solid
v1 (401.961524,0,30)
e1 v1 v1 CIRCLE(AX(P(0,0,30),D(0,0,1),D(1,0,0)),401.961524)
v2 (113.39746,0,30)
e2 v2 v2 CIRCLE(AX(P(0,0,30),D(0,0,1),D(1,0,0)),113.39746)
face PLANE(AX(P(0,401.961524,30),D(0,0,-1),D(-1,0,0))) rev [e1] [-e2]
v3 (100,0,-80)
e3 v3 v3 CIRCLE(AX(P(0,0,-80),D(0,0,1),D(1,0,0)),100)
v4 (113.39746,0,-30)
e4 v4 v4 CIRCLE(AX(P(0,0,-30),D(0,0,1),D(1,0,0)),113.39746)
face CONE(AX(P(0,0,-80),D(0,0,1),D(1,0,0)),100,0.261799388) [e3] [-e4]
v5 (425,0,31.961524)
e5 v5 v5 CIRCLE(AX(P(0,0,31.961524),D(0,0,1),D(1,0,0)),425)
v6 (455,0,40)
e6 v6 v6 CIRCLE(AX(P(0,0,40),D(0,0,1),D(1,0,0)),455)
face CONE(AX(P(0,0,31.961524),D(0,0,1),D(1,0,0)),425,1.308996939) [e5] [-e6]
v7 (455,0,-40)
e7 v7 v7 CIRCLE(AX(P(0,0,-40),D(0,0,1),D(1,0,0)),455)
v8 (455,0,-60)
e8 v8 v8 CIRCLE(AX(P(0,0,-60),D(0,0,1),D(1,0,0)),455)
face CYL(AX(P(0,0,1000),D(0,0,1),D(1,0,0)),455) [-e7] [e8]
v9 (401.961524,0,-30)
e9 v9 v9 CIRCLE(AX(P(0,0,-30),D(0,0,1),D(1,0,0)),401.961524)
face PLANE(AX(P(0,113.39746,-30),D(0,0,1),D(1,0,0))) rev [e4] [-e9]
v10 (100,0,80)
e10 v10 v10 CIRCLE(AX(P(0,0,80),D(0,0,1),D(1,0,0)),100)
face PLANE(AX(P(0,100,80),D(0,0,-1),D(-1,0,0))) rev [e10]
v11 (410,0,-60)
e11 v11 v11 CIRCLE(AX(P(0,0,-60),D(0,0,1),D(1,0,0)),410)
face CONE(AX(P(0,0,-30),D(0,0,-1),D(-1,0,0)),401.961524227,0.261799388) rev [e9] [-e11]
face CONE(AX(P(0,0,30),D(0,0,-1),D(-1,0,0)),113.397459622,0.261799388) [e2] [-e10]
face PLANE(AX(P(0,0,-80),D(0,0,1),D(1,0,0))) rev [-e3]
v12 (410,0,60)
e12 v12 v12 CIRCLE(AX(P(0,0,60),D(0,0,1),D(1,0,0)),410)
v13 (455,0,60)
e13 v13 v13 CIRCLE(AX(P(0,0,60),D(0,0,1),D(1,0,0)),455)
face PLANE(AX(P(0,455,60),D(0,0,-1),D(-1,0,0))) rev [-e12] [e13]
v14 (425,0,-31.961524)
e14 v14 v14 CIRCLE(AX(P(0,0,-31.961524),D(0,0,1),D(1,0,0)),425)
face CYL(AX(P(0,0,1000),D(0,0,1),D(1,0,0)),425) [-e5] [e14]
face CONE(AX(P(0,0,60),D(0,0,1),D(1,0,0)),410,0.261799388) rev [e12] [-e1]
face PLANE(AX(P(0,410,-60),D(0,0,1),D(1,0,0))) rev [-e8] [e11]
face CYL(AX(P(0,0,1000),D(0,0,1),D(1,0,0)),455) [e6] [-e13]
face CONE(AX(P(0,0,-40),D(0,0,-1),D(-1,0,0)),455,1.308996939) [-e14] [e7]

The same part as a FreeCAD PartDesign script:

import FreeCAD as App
import Part
import Sketcher
Q = App.Units.Quantity


def add_polygon(sketch, points):
    """Adds a closed chain of lines whose ends are joined by coincident constraints."""
    first, n = sketch.GeometryCount, len(points)
    for a, b in zip(points, points[1:] + points[:1]):
        sketch.addGeometry(Part.LineSegment(App.Vector(*a, 0), App.Vector(*b, 0)), False)
    for i in range(n):
        sketch.addConstraint(Sketcher.Constraint("Coincident", first + i, 2, first + (i + 1) % n, 1))

doc = App.newDocument("Part")
params = doc.addObject("Spreadsheet::Sheet", "Params")
for row, (alias, value) in enumerate([
    ("sketch1_width", "100 mm"),
    ("sketch1_width2", "45 mm"),
    ("sketch1_height", "160 mm"),
    ("sketch1_height2", "20 mm"),
    ("revolution_angle", "360 deg"),
], start=1):
    params.set(f"A{row}", alias)
    params.set(f"B{row}", "=" + value)
    params.setAlias(f"B{row}", alias)

body = doc.addObject("PartDesign::Body", "Body")

# Sketch on YZ plane
sketch1 = body.newObject("Sketcher::SketchObject", "Sketch")
sketch1.AttachmentSupport = (doc.getObject("YZ_Plane"), [""])
sketch1.MapMode = "FlatFace"
add_polygon(sketch1, [(0, 80), (0, -80), (100, -80), (113, -30), (402, -30), (410, -60), (455, -60), (455, -40), (425, -32), (425, 32), (455, 40), (455, 60), (410, 60), (402, 30), (113, 30), (100, 80)])  # lines 0-15
sketch1.addConstraint([
    Sketcher.Constraint("Vertical", 0),
    Sketcher.Constraint("Horizontal", 1),
    Sketcher.Constraint("Horizontal", 3),
    Sketcher.Constraint("Horizontal", 5),
    Sketcher.Constraint("Vertical", 6),
    Sketcher.Constraint("Vertical", 8),
    Sketcher.Constraint("Vertical", 10),
    Sketcher.Constraint("Horizontal", 11),
    Sketcher.Constraint("Horizontal", 13),
    Sketcher.Constraint("Horizontal", 15),
    Sketcher.Constraint("Symmetric", 0, 2, 15, 2, -1, 1),
    Sketcher.Constraint("Symmetric", 6, 2, 9, 2, -1),
    Sketcher.Constraint("Symmetric", 4, 2, 11, 2, -1),
    Sketcher.Constraint("Symmetric", 3, 2, 12, 2, -1),
    Sketcher.Constraint("Perpendicular", 2, 7),
    Sketcher.Constraint("Perpendicular", 4, 9),
    Sketcher.Constraint("Perpendicular", 7, 12),
    Sketcher.Constraint("Perpendicular", 9, 14),
    Sketcher.Constraint("Vertical", 2, 2, 13, 2),
    Sketcher.Constraint("Equal", 4, 7),
    Sketcher.Constraint("DistanceX", 1, 1, 1, 2, 100.0),
    Sketcher.Constraint("DistanceX", 5, 1, 5, 2, 45.0),
    Sketcher.Constraint("DistanceY", 0, 2, 0, 1, 160.0),
    Sketcher.Constraint("DistanceY", 6, 1, 6, 2, 20.0),
    Sketcher.Constraint("Angle", 2, Q("75 deg")),
    Sketcher.Constraint("DistanceY", 2, 2, -1, 1, 30.0),
    Sketcher.Constraint("DistanceX", -1, 1, 4, 2, 410.0),
    Sketcher.Constraint("DistanceY", 4, 2, -1, 1, 60.0),
])
sketch1.setExpression("Constraints[36]", "Params.sketch1_width")
sketch1.setExpression("Constraints[37]", "Params.sketch1_width2")
sketch1.setExpression("Constraints[38]", "Params.sketch1_height")
sketch1.setExpression("Constraints[39]", "Params.sketch1_height2")
revolution = body.newObject("PartDesign::Revolution", "Revolution")
revolution.Profile = sketch1
revolution.ReferenceAxis = (sketch1, ["V_Axis"])
revolution.setExpression("Angle", "Params.revolution_angle")

doc.recompute()
